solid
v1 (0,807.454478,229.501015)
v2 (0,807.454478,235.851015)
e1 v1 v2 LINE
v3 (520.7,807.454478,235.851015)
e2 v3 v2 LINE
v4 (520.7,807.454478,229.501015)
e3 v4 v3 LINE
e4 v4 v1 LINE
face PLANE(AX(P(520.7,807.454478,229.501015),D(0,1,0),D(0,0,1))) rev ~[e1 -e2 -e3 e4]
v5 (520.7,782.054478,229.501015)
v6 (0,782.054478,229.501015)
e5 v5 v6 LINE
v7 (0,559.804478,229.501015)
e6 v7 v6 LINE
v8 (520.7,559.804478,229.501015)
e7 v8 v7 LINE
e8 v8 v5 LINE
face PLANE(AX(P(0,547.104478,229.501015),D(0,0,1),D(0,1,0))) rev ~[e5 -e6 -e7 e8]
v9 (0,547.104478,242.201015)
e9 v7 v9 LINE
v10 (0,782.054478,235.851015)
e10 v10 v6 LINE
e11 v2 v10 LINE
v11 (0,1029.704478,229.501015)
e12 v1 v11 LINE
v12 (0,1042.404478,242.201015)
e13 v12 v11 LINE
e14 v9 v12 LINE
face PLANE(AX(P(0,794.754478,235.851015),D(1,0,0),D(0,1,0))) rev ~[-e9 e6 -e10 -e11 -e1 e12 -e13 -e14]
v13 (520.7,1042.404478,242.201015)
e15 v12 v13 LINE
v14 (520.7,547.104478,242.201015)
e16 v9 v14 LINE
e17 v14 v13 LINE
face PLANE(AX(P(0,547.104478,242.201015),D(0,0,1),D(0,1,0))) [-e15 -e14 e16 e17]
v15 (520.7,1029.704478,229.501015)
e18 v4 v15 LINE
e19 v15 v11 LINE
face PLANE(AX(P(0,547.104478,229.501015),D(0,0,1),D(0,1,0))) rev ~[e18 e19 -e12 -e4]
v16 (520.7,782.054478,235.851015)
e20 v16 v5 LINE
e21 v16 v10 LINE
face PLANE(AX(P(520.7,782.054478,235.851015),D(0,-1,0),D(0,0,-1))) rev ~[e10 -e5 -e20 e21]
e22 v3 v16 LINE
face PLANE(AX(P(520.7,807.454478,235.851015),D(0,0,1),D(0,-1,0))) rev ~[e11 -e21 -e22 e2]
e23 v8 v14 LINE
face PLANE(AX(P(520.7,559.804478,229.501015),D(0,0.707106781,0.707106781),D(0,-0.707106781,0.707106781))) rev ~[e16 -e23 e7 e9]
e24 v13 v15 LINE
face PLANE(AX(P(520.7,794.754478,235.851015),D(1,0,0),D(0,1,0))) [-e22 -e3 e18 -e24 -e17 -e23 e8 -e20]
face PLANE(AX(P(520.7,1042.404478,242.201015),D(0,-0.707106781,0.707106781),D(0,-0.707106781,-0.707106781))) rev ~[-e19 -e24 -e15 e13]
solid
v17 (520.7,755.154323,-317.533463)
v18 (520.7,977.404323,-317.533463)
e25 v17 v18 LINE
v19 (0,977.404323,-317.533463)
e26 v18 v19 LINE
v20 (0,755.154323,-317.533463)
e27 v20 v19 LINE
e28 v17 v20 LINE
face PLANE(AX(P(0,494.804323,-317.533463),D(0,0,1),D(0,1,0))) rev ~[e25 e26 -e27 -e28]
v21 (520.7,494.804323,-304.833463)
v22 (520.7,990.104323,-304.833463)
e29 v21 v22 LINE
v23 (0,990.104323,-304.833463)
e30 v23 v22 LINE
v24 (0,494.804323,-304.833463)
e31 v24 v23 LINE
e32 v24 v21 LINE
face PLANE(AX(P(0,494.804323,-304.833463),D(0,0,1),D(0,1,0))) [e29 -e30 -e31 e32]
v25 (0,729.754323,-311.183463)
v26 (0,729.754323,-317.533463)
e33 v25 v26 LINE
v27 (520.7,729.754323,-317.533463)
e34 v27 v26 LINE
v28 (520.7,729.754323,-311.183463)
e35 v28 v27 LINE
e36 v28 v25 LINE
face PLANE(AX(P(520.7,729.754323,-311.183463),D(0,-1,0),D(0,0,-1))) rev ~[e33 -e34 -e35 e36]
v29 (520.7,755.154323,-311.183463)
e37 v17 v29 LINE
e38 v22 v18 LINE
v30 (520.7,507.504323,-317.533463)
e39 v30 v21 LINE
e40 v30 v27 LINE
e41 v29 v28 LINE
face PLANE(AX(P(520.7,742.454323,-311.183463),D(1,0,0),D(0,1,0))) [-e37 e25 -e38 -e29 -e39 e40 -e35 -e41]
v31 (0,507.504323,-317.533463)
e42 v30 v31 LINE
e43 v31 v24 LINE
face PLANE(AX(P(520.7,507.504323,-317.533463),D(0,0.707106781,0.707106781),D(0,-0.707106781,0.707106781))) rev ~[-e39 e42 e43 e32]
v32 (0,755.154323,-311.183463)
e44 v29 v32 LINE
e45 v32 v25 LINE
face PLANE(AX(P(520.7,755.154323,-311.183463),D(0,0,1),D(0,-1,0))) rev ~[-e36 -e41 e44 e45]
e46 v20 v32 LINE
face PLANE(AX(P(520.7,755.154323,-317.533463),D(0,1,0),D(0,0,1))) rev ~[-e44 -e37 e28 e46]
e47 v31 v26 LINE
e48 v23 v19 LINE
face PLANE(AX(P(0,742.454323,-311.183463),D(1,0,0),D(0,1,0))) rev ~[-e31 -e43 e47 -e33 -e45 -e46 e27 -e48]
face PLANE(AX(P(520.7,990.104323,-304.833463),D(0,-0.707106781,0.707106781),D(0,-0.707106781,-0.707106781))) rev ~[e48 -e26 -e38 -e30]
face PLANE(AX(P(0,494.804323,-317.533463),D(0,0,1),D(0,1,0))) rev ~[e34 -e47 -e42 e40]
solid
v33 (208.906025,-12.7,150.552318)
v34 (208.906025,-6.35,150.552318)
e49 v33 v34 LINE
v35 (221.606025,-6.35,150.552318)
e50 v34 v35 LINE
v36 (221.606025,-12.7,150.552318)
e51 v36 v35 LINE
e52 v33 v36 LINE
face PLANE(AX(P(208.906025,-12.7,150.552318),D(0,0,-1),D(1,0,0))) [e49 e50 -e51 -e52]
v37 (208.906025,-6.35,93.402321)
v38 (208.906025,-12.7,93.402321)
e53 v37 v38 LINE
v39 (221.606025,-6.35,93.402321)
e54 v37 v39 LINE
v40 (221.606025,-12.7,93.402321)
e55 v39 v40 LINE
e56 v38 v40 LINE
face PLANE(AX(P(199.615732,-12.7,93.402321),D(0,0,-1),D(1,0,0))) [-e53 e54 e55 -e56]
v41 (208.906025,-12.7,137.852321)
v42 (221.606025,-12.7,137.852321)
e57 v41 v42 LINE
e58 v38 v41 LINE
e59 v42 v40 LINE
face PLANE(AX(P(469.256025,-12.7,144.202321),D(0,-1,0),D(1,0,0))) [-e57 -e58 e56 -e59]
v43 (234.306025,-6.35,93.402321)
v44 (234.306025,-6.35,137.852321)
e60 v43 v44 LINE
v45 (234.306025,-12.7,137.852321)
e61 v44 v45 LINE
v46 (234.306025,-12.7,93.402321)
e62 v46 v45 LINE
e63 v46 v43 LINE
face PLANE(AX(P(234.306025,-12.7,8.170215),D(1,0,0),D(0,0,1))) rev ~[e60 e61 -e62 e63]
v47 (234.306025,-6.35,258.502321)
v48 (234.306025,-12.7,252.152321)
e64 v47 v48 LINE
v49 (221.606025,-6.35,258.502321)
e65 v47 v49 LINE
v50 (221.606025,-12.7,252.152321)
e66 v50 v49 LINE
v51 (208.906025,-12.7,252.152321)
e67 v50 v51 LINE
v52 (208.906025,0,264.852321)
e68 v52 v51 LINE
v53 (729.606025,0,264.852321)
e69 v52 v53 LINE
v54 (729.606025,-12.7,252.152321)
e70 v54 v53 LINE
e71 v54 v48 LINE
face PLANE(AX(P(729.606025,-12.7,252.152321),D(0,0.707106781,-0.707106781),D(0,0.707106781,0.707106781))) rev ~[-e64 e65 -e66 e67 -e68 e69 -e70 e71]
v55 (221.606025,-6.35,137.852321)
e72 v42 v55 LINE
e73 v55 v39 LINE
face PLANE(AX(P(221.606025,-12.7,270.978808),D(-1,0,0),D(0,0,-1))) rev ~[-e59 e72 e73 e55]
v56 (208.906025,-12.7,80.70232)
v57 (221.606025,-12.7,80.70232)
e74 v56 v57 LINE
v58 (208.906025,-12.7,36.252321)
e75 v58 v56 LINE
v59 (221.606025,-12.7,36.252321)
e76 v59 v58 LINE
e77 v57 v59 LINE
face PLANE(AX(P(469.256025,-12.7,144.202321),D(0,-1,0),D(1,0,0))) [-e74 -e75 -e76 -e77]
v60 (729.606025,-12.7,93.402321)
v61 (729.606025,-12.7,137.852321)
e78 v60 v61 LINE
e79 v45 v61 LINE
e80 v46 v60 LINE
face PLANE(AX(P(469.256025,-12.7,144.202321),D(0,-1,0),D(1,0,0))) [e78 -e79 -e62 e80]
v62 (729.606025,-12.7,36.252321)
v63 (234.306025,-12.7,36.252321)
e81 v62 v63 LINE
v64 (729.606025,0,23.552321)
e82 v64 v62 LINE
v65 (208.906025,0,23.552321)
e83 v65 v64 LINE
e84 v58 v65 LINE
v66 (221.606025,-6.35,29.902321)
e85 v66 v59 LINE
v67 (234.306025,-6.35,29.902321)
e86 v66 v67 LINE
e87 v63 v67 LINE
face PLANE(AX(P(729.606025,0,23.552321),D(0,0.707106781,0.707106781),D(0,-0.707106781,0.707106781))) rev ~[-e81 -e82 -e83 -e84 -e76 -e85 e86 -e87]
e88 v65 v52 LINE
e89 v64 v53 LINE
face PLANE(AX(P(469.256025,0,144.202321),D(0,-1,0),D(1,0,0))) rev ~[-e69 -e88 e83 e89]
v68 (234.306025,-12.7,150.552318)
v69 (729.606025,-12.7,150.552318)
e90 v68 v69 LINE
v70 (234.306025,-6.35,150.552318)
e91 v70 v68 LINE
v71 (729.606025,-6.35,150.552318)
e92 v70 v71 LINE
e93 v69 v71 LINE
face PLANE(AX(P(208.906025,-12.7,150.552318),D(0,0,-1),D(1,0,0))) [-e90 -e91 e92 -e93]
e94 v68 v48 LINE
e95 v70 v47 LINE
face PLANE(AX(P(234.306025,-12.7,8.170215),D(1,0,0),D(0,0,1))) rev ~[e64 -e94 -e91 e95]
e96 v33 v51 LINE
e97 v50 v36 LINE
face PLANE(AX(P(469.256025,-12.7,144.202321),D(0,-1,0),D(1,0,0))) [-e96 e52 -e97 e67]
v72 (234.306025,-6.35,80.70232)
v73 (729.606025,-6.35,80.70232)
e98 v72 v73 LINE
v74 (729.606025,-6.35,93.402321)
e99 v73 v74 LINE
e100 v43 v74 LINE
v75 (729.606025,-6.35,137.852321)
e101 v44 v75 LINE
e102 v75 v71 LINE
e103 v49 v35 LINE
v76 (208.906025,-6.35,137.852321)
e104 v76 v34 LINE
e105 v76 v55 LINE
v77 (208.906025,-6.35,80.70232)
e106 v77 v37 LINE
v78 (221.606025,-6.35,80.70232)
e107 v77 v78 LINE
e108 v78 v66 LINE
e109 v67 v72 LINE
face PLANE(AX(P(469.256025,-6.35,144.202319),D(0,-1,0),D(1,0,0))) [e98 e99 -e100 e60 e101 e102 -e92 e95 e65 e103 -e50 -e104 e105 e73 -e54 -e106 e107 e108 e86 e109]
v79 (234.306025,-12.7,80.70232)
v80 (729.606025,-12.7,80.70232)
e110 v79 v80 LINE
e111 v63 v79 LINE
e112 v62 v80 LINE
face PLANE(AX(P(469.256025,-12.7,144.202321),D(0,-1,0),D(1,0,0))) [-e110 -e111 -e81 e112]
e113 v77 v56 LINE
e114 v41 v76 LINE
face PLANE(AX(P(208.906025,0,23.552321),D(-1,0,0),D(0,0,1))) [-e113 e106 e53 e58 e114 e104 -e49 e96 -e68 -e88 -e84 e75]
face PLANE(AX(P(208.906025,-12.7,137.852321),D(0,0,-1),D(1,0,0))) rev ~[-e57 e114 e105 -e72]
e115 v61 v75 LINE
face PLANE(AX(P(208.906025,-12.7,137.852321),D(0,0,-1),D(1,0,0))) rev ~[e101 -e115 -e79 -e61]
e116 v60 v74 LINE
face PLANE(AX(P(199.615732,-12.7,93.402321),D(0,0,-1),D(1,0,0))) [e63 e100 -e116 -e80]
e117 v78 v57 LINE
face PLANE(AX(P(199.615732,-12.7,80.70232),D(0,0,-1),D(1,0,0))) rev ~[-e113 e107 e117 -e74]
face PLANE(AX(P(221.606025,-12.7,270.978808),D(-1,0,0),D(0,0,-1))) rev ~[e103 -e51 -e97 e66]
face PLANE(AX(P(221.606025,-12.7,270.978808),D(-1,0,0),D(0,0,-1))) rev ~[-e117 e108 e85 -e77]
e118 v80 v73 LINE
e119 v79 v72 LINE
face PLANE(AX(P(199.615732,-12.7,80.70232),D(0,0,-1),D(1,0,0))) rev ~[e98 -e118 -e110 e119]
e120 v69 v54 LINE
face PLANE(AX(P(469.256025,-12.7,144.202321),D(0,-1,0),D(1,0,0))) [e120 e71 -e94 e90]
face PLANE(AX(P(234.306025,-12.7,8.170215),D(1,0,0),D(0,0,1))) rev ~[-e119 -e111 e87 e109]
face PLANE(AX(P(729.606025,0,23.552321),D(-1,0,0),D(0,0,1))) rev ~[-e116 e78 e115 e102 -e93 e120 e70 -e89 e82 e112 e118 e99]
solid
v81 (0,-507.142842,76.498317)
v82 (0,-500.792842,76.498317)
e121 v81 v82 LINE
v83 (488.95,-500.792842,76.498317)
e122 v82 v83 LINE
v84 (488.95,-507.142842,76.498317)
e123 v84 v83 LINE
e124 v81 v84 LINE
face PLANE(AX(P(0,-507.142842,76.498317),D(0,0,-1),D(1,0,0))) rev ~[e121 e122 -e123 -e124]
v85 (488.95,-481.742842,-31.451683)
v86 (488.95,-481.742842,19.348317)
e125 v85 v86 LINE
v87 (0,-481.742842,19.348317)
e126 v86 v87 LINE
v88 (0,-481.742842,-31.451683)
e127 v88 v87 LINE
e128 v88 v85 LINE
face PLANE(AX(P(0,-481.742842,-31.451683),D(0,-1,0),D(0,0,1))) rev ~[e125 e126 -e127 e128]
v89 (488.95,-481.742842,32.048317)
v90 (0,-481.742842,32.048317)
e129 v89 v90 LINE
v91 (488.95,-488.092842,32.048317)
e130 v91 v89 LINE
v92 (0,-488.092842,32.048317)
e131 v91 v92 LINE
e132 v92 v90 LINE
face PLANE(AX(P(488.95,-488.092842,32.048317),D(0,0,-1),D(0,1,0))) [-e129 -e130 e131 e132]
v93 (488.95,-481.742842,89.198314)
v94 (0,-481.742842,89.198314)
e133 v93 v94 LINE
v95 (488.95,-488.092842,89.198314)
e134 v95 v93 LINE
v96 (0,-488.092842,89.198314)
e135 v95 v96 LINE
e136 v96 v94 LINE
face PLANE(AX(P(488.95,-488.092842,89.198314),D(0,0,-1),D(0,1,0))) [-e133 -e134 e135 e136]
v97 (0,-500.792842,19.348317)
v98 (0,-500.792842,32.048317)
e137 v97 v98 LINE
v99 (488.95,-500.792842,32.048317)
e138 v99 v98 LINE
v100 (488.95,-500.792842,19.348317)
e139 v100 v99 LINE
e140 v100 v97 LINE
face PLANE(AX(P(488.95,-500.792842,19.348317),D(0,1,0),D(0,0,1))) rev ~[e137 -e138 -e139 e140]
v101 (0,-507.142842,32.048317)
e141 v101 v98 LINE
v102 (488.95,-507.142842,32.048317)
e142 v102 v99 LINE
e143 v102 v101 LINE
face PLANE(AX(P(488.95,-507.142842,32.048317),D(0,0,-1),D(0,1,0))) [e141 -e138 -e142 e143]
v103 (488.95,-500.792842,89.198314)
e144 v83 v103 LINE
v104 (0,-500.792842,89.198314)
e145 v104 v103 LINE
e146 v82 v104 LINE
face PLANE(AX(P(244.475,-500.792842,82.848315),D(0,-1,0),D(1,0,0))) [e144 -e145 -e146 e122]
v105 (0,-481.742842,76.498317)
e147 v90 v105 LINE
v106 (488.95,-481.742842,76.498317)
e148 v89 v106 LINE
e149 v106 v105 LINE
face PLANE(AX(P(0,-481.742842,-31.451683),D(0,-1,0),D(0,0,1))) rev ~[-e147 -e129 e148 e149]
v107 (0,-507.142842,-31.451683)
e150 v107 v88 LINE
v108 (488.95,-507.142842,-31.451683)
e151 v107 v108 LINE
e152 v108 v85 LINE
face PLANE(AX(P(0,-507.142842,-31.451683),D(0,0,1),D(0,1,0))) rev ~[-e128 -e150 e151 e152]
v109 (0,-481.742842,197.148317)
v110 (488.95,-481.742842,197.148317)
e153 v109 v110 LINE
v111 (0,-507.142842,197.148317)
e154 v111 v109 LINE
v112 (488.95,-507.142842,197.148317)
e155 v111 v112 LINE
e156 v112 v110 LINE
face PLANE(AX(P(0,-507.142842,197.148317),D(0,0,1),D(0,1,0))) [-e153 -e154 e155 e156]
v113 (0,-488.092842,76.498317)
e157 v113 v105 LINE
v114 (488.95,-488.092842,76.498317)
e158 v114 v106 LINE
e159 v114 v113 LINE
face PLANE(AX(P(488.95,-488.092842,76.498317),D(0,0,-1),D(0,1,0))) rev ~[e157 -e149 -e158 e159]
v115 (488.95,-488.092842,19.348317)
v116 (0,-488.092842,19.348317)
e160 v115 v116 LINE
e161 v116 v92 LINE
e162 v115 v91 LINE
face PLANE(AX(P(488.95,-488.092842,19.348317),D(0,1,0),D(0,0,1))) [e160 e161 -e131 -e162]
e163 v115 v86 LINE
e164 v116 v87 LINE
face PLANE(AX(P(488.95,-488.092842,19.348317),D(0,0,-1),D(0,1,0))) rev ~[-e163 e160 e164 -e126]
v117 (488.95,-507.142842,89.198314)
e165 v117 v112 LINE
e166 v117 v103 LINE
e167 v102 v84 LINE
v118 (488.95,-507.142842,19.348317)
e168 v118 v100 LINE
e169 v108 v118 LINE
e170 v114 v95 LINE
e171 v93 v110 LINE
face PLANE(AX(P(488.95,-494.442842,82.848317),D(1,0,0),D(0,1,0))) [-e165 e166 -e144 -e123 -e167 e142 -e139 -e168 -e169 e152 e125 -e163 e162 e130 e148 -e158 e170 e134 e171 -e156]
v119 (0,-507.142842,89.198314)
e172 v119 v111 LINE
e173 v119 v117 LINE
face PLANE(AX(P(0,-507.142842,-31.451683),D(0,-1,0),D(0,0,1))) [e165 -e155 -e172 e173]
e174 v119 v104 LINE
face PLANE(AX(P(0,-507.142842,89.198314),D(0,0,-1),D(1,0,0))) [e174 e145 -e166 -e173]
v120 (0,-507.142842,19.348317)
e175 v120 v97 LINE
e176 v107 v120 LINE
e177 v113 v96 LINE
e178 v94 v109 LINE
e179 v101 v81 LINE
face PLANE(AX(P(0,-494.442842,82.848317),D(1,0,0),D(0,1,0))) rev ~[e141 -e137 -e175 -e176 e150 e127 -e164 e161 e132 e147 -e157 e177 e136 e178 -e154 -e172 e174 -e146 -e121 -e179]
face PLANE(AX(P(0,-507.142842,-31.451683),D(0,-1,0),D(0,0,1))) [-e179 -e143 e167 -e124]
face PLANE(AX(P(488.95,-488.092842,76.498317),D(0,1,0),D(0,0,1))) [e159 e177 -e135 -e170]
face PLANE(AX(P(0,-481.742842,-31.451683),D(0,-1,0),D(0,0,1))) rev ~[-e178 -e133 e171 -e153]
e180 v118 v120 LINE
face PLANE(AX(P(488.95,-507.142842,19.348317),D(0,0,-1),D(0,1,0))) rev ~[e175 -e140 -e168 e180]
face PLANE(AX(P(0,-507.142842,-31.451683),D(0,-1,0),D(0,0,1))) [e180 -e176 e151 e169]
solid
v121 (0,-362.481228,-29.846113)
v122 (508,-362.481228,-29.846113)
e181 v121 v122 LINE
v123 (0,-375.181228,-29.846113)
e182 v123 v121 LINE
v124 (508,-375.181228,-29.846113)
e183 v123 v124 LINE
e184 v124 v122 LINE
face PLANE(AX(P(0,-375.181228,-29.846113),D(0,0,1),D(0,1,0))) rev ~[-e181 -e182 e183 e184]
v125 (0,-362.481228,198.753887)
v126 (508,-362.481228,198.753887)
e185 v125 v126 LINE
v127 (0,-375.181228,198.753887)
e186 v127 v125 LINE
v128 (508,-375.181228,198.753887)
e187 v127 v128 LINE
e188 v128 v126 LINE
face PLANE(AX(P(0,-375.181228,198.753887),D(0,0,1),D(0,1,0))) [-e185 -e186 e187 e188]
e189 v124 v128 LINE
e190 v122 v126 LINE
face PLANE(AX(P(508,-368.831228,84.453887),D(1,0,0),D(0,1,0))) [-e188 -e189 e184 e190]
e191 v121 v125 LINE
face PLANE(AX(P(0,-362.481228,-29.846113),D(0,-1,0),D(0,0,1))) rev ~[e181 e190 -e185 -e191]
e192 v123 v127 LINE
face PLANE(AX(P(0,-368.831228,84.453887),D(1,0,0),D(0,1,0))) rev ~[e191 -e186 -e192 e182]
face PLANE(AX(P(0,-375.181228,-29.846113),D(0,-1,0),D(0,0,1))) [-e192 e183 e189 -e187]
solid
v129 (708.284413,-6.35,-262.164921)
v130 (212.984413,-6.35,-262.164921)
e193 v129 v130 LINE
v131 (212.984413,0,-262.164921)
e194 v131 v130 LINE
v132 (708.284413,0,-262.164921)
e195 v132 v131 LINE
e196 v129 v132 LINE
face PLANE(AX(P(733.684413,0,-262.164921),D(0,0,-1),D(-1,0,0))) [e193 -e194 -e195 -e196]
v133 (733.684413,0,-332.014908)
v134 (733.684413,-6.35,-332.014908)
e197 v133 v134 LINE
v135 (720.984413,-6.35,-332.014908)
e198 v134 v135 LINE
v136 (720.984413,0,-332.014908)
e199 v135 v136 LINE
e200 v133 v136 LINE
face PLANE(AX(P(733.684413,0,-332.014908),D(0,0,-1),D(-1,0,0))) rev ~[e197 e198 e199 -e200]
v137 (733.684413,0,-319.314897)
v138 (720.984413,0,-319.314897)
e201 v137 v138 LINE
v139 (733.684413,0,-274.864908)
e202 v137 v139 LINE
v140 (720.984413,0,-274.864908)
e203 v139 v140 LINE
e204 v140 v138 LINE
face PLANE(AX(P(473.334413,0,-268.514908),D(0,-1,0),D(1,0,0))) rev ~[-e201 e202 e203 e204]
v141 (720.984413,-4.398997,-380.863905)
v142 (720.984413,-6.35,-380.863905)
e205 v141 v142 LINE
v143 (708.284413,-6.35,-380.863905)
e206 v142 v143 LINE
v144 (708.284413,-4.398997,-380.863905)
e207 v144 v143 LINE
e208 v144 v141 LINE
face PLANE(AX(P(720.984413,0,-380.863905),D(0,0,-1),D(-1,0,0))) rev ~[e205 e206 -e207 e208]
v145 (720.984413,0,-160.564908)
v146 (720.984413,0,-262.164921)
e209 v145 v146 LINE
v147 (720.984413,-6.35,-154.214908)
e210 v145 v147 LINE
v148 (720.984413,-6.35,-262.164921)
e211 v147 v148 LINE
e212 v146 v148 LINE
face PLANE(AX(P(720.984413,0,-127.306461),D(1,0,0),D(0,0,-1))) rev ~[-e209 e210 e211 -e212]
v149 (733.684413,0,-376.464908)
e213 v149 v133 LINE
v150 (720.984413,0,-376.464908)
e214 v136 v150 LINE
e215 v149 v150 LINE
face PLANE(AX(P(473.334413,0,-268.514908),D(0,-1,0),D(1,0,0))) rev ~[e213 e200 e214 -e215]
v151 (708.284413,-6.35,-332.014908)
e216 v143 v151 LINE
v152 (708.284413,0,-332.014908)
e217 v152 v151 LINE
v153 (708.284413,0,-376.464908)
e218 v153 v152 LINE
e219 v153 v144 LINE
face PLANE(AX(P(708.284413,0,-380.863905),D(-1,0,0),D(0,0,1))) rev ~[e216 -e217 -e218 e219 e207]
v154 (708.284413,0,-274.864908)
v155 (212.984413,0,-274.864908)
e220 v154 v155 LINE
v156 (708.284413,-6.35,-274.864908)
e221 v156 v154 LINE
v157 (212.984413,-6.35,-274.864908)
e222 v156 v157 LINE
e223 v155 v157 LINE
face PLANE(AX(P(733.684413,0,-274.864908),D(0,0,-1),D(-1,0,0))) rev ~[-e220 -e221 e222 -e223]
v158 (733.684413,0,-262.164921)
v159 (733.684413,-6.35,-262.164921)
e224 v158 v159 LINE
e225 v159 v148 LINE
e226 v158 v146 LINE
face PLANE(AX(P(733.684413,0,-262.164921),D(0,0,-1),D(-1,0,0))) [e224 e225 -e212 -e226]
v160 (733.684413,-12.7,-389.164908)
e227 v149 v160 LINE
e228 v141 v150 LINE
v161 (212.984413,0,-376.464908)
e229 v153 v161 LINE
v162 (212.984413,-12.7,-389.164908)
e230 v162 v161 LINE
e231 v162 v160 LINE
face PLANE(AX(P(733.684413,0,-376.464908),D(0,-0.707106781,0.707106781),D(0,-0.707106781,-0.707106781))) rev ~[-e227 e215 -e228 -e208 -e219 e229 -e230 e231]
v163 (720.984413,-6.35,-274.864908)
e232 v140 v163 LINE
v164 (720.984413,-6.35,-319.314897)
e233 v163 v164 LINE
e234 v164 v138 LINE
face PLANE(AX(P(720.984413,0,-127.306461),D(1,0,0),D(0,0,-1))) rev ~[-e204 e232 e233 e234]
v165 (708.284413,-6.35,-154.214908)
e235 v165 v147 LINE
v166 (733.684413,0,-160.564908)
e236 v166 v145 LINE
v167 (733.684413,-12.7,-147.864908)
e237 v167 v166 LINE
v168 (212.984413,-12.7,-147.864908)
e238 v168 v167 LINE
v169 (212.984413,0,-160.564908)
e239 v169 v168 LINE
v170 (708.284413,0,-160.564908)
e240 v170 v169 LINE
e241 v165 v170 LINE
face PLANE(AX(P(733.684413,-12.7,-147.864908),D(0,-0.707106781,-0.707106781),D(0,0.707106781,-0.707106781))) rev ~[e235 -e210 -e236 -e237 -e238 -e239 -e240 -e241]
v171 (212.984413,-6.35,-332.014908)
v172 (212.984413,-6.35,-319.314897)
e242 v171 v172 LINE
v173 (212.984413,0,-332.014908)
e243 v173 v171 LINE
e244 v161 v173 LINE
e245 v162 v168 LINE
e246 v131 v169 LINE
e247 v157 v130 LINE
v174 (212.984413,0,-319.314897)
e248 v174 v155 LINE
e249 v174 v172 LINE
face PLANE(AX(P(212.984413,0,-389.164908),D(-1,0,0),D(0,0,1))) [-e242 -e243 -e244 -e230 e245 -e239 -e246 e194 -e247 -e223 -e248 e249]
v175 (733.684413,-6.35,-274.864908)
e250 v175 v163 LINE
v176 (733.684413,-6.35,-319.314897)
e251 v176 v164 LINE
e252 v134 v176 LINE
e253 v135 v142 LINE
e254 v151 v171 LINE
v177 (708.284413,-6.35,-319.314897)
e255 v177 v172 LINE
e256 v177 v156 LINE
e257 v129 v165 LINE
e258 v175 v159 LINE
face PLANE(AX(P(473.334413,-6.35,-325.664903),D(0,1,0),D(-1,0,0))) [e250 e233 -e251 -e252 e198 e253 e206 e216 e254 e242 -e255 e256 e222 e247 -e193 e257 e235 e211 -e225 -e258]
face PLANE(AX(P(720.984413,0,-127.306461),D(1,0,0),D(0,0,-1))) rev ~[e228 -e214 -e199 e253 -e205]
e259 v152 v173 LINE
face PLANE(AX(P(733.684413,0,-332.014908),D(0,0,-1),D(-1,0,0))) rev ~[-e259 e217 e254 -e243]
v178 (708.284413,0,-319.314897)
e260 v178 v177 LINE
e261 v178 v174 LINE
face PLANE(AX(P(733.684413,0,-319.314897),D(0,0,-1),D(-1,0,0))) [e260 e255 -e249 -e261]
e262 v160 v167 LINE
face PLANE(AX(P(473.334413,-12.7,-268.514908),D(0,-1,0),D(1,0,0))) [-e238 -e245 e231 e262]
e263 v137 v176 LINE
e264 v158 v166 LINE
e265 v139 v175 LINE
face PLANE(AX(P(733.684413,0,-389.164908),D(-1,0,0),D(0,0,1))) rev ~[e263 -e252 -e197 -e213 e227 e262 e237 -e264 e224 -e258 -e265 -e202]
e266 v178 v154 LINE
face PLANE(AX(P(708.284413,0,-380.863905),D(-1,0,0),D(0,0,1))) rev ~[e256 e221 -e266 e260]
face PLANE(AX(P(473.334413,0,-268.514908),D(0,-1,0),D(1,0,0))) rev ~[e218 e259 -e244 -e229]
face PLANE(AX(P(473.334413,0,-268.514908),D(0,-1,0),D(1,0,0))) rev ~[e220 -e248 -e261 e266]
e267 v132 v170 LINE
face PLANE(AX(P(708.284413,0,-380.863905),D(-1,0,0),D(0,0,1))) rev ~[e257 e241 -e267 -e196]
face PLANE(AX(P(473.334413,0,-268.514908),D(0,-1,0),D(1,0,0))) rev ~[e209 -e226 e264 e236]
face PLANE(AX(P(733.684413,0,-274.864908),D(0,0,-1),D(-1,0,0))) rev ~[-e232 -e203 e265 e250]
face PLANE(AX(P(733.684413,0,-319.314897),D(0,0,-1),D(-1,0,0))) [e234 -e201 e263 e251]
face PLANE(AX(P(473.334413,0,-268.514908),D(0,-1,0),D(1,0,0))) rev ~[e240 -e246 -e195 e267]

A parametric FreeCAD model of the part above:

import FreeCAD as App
import Part
import Sketcher

V = App.Vector
Q = App.Units.Quantity

doc = App.newDocument("Part")
body = doc.addObject("PartDesign::Body", "Body")

# Sketch on XZ plane
sketch1 = doc.addObject("Sketcher::SketchObject", "Sketch")
body.addObject(sketch1)
sketch1.AttachmentSupport = (doc.XZ_Plane, [""])
sketch1.MapMode = "FlatFace"
sketch1.addGeometry([
    Part.LineSegment(V(209, 265, 0), V(209, 24, 0)),
    Part.LineSegment(V(209, 24, 0), V(730, 24, 0)),
    Part.LineSegment(V(730, 24, 0), V(730, 265, 0)),
    Part.LineSegment(V(730, 265, 0), V(209, 265, 0)),
], False)
sketch1.addConstraint([
    Sketcher.Constraint("Coincident", 0, 2, 1, 1),
    Sketcher.Constraint("Coincident", 1, 2, 2, 1),
    Sketcher.Constraint("Coincident", 2, 2, 3, 1),
    Sketcher.Constraint("Coincident", 3, 2, 0, 1),
    Sketcher.Constraint("Vertical", 0),
    Sketcher.Constraint("Horizontal", 1),
    Sketcher.Constraint("Vertical", 2),
    Sketcher.Constraint("Horizontal", 3),
    Sketcher.Constraint("DistanceX", 1, 1, 1, 2, Q("20.5 in")),
    Sketcher.Constraint("DistanceY", 0, 2, 0, 1, Q("9.5 in")),
    Sketcher.Constraint("DistanceY", -1, 1, 0, 2, Q("23.552321 mm")),
    Sketcher.Constraint("DistanceX", -1, 1, 0, 2, Q("208.906025 mm")),
])
pad1 = doc.addObject("PartDesign::Pad", "Pad")
body.addObject(pad1)
pad1.Profile = sketch1
pad1.Length = Q("0.5 in")

# Sketch on YZ plane
sketch2 = doc.addObject("Sketcher::SketchObject", "Sketch001")
body.addObject(sketch2)
sketch2.AttachmentSupport = (doc.YZ_Plane, [""])
sketch2.MapMode = "FlatFace"
sketch2.AttachmentOffset = App.Placement(V(0, 0, 729.606025), App.Rotation())
sketch2.addGeometry([
    Part.LineSegment(V(0, 24, 0), V(-13, 36, 0)),  # 0
    Part.LineSegment(V(-13, 36, 0), V(-13, 24, 0)),  # 1
    Part.LineSegment(V(-13, 24, 0), V(0, 24, 0)),  # 2
    Part.LineSegment(V(-13, 265, 0), V(-13, 252, 0)),  # 3
    Part.LineSegment(V(-13, 252, 0), V(0, 265, 0)),  # 4
    Part.LineSegment(V(0, 265, 0), V(-13, 265, 0)),  # 5
], False)
sketch2.addConstraint([
    Sketcher.Constraint("Coincident", 0, 2, 1, 1),
    Sketcher.Constraint("Coincident", 1, 2, 2, 1),
    Sketcher.Constraint("Coincident", 2, 2, 0, 1),
    Sketcher.Constraint("Coincident", 3, 2, 4, 1),
    Sketcher.Constraint("Coincident", 4, 2, 5, 1),
    Sketcher.Constraint("Coincident", 5, 2, 3, 1),
    Sketcher.Constraint("Vertical", 1),
    Sketcher.Constraint("Horizontal", 2),
    Sketcher.Constraint("Vertical", 3),
    Sketcher.Constraint("Horizontal", 5),
    Sketcher.Constraint("PointOnObject", 2, 2, -2),
    Sketcher.Constraint("PointOnObject", 4, 2, -2),
    Sketcher.Constraint("Perpendicular", 0, 4),
    Sketcher.Constraint("Vertical", 1, 2, 3, 2),
    Sketcher.Constraint("Equal", 5, 1),
    Sketcher.Constraint("DistanceX", 2, 1, 2, 2, Q("0.5 in")),
    Sketcher.Constraint("DistanceY", 1, 2, 3, 2, Q("9 in")),
    Sketcher.Constraint("DistanceY", -1, 1, 0, 2, Q("36.252321 mm")),
])
pocket1 = doc.addObject("PartDesign::Pocket", "Pocket")
body.addObject(pocket1)
pocket1.Profile = sketch2
pocket1.Type = "ThroughAll"

# Sketch on XZ plane
sketch3 = doc.addObject("Sketcher::SketchObject", "Sketch002")
body.addObject(sketch3)
sketch3.AttachmentSupport = (doc.XZ_Plane, [""])
sketch3.MapMode = "FlatFace"
sketch3.AttachmentOffset = App.Placement(V(0, 0, 0.5 * 25.4), App.Rotation())
sketch3.addGeometry([
    Part.LineSegment(V(209, 151, 0), V(209, 138, 0)),
    Part.LineSegment(V(209, 138, 0), V(730, 138, 0)),
    Part.LineSegment(V(730, 138, 0), V(730, 151, 0)),
    Part.LineSegment(V(730, 151, 0), V(209, 151, 0)),
], False)
sketch3.addConstraint([
    Sketcher.Constraint("Coincident", 0, 2, 1, 1),
    Sketcher.Constraint("Coincident", 1, 2, 2, 1),
    Sketcher.Constraint("Coincident", 2, 2, 3, 1),
    Sketcher.Constraint("Coincident", 3, 2, 0, 1),
    Sketcher.Constraint("Vertical", 0),
    Sketcher.Constraint("Horizontal", 1),
    Sketcher.Constraint("Vertical", 2),
    Sketcher.Constraint("Horizontal", 3),
    Sketcher.Constraint("DistanceX", 1, 1, 1, 2, Q("20.5 in")),
    Sketcher.Constraint("DistanceY", 0, 2, 0, 1, Q("0.4999999 in")),
    Sketcher.Constraint("DistanceY", -1, 1, 0, 2, Q("137.852321 mm")),
    Sketcher.Constraint("DistanceX", -1, 1, 0, 2, Q("208.906025 mm")),
])
pocket2 = doc.addObject("PartDesign::Pocket", "Pocket001")
body.addObject(pocket2)
pocket2.Profile = sketch3
pocket2.Length = Q("0.25 in")

# Sketch on XZ plane
sketch4 = doc.addObject("Sketcher::SketchObject", "Sketch003")
body.addObject(sketch4)
sketch4.AttachmentSupport = (doc.XZ_Plane, [""])
sketch4.MapMode = "FlatFace"
sketch4.AttachmentOffset = App.Placement(V(0, 0, 0.5 * 25.4), App.Rotation())
sketch4.addGeometry([
    Part.LineSegment(V(222, 271, 0), V(222, 8, 0)),
    Part.LineSegment(V(222, 8, 0), V(234, 8, 0)),
    Part.LineSegment(V(234, 8, 0), V(234, 265, 0)),
    Part.LineSegment(V(234, 265, 0), V(222, 271, 0)),
], False)
sketch4.addConstraint([
    Sketcher.Constraint("Coincident", 0, 2, 1, 1),
    Sketcher.Constraint("Coincident", 1, 2, 2, 1),
    Sketcher.Constraint("Coincident", 2, 2, 3, 1),
    Sketcher.Constraint("Coincident", 3, 2, 0, 1),
    Sketcher.Constraint("Vertical", 0),
    Sketcher.Constraint("Horizontal", 1),
    Sketcher.Constraint("Vertical", 2),
    Sketcher.Constraint("DistanceX", 1, 1, 1, 2, Q("0.5 in")),
    Sketcher.Constraint("Distance", 3, Q("14.08391 mm")),
    Sketcher.Constraint("DistanceY", 0, 2, 0, 1, Q("262.808593 mm")),
    Sketcher.Constraint("DistanceY", -1, 1, 2, 2, Q("264.890581 mm")),
    Sketcher.Constraint("DistanceX", -1, 1, 0, 2, Q("221.606025 mm")),
])
pocket3 = doc.addObject("PartDesign::Pocket", "Pocket002")
body.addObject(pocket3)
pocket3.Profile = sketch4
pocket3.Length = Q("0.25 in")

# Sketch on XZ plane
sketch5 = doc.addObject("Sketcher::SketchObject", "Sketch004")
body.addObject(sketch5)
sketch5.AttachmentSupport = (doc.XZ_Plane, [""])
sketch5.MapMode = "FlatFace"
sketch5.AttachmentOffset = App.Placement(V(0, 0, 0.5 * 25.4), App.Rotation())
sketch5.addGeometry([
    Part.LineSegment(V(200, 93, 0), V(200, 81, 0)),
    Part.LineSegment(V(200, 81, 0), V(730, 81, 0)),
    Part.LineSegment(V(730, 81, 0), V(730, 93, 0)),
    Part.LineSegment(V(730, 93, 0), V(200, 93, 0)),
], False)
sketch5.addConstraint([
    Sketcher.Constraint("Coincident", 0, 2, 1, 1),
    Sketcher.Constraint("Coincident", 1, 2, 2, 1),
    Sketcher.Constraint("Coincident", 2, 2, 3, 1),
    Sketcher.Constraint("Coincident", 3, 2, 0, 1),
    Sketcher.Constraint("Vertical", 0),
    Sketcher.Constraint("Horizontal", 1),
    Sketcher.Constraint("Vertical", 2),
    Sketcher.Constraint("Horizontal", 3),
    Sketcher.Constraint("DistanceY", 0, 2, 0, 1, Q("0.5 in")),
    Sketcher.Constraint("DistanceX", 1, 1, 1, 2, Q("529.990293 mm")),
    Sketcher.Constraint("DistanceX", -1, 1, 0, 2, Q("199.615732 mm")),
    Sketcher.Constraint("DistanceY", -1, 1, 0, 2, Q("80.70232 mm")),
])
pocket4 = doc.addObject("PartDesign::Pocket", "Pocket003")
body.addObject(pocket4)
pocket4.Profile = sketch5
pocket4.Length = Q("0.25 in")
body2 = doc.addObject("PartDesign::Body", "Body001")

# Sketch on XZ plane
sketch6 = doc.addObject("Sketcher::SketchObject", "Sketch005")
body2.addObject(sketch6)
sketch6.AttachmentSupport = (doc.getObject("XZ_Plane001"), [""])
sketch6.MapMode = "FlatFace"
sketch6.addGeometry([
    Part.LineSegment(V(213, -148, 0), V(213, -389, 0)),
    Part.LineSegment(V(213, -389, 0), V(734, -389, 0)),
    Part.LineSegment(V(734, -389, 0), V(734, -148, 0)),
    Part.LineSegment(V(734, -148, 0), V(213, -148, 0)),
], False)
sketch6.addConstraint([
    Sketcher.Constraint("Coincident", 0, 2, 1, 1),
    Sketcher.Constraint("Coincident", 1, 2, 2, 1),
    Sketcher.Constraint("Coincident", 2, 2, 3, 1),
    Sketcher.Constraint("Coincident", 3, 2, 0, 1),
    Sketcher.Constraint("Vertical", 0),
    Sketcher.Constraint("Horizontal", 1),
    Sketcher.Constraint("Vertical", 2),
    Sketcher.Constraint("Horizontal", 3),
    Sketcher.Constraint("DistanceX", 1, 1, 1, 2, Q("20.5 in")),
    Sketcher.Constraint("DistanceY", 0, 2, 0, 1, Q("9.5 in")),
    Sketcher.Constraint("DistanceX", -1, 1, 0, 2, Q("212.984413 mm")),
    Sketcher.Constraint("DistanceY", 0, 2, -1, 1, Q("389.164908 mm")),
])
pad2 = doc.addObject("PartDesign::Pad", "Pad001")
body2.addObject(pad2)
pad2.Profile = sketch6
pad2.Length = Q("0.5 in")

# Sketch on YZ plane
sketch7 = doc.addObject("Sketcher::SketchObject", "Sketch006")
body2.addObject(sketch7)
sketch7.AttachmentSupport = (doc.getObject("YZ_Plane001"), [""])
sketch7.MapMode = "FlatFace"
sketch7.AttachmentOffset = App.Placement(V(0, 0, 733.684413), App.Rotation())
sketch7.addGeometry([
    Part.LineSegment(V(-13, -148, 0), V(0, -161, 0)),  # 0
    Part.LineSegment(V(0, -161, 0), V(0, -148, 0)),  # 1
    Part.LineSegment(V(0, -148, 0), V(-13, -148, 0)),  # 2
    Part.LineSegment(V(0, -389, 0), V(0, -376, 0)),  # 3
    Part.LineSegment(V(0, -376, 0), V(-13, -389, 0)),  # 4
    Part.LineSegment(V(-13, -389, 0), V(0, -389, 0)),  # 5
], False)
sketch7.addConstraint([
    Sketcher.Constraint("Coincident", 0, 2, 1, 1),
    Sketcher.Constraint("Coincident", 1, 2, 2, 1),
    Sketcher.Constraint("Coincident", 2, 2, 0, 1),
    Sketcher.Constraint("Coincident", 3, 2, 4, 1),
    Sketcher.Constraint("Coincident", 4, 2, 5, 1),
    Sketcher.Constraint("Coincident", 5, 2, 3, 1),
    Sketcher.Constraint("Vertical", 1),
    Sketcher.Constraint("Horizontal", 2),
    Sketcher.Constraint("Vertical", 3),
    Sketcher.Constraint("Horizontal", 5),
    Sketcher.Constraint("PointOnObject", 0, 2, -2),
    Sketcher.Constraint("PointOnObject", 3, 2, -2),
    Sketcher.Constraint("Perpendicular", 0, 4),
    Sketcher.Constraint("Vertical", 2, 2, 4, 2),
    Sketcher.Constraint("Equal", 5, 1),
    Sketcher.Constraint("DistanceX", 2, 2, 2, 1, Q("0.5 in")),
    Sketcher.Constraint("DistanceY", 3, 2, 1, 2, Q("9 in")),
    Sketcher.Constraint("DistanceY", 0, 2, -1, 1, Q("160.564908 mm")),
])
pocket5 = doc.addObject("PartDesign::Pocket", "Pocket004")
body2.addObject(pocket5)
pocket5.Profile = sketch7
pocket5.Type = "ThroughAll"

# Sketch on XZ plane
sketch8 = doc.addObject("Sketcher::SketchObject", "Sketch007")
body2.addObject(sketch8)
sketch8.AttachmentSupport = (doc.getObject("XZ_Plane001"), [""])
sketch8.MapMode = "FlatFace"
sketch8.addGeometry([
    Part.LineSegment(V(734, -262, 0), V(734, -275, 0)),
    Part.LineSegment(V(734, -275, 0), V(213, -275, 0)),
    Part.LineSegment(V(213, -275, 0), V(213, -262, 0)),
    Part.LineSegment(V(213, -262, 0), V(734, -262, 0)),
], False)
sketch8.addConstraint([
    Sketcher.Constraint("Coincident", 0, 2, 1, 1),
    Sketcher.Constraint("Coincident", 1, 2, 2, 1),
    Sketcher.Constraint("Coincident", 2, 2, 3, 1),
    Sketcher.Constraint("Coincident", 3, 2, 0, 1),
    Sketcher.Constraint("Vertical", 0),
    Sketcher.Constraint("Horizontal", 1),
    Sketcher.Constraint("Vertical", 2),
    Sketcher.Constraint("Horizontal", 3),
    Sketcher.Constraint("DistanceX", 1, 2, 1, 1, Q("20.5 in")),
    Sketcher.Constraint("DistanceY", 0, 2, 0, 1, Q("12.699987 mm")),
    Sketcher.Constraint("DistanceY", 2, 2, -1, 1, Q("262.164921 mm")),
    Sketcher.Constraint("DistanceX", -1, 1, 0, 2, Q("733.684413 mm")),
])
pocket6 = doc.addObject("PartDesign::Pocket", "Pocket005")
body2.addObject(pocket6)
pocket6.Profile = sketch8
pocket6.Length = Q("0.25 in")
pocket6.Reversed = True

# Sketch on XZ plane
sketch9 = doc.addObject("Sketcher::SketchObject", "Sketch008")
body2.addObject(sketch9)
sketch9.AttachmentSupport = (doc.getObject("XZ_Plane001"), [""])
sketch9.MapMode = "FlatFace"
sketch9.addGeometry([
    Part.LineSegment(V(721, -381, 0), V(708, -381, 0)),
    Part.LineSegment(V(708, -381, 0), V(708, -127, 0)),
    Part.LineSegment(V(708, -127, 0), V(721, -127, 0)),
    Part.LineSegment(V(721, -127, 0), V(721, -381, 0)),
], False)
sketch9.addConstraint([
    Sketcher.Constraint("Coincident", 0, 2, 1, 1),
    Sketcher.Constraint("Coincident", 1, 2, 2, 1),
    Sketcher.Constraint("Coincident", 2, 2, 3, 1),
    Sketcher.Constraint("Coincident", 3, 2, 0, 1),
    Sketcher.Constraint("Horizontal", 0),
    Sketcher.Constraint("Vertical", 1),
    Sketcher.Constraint("Horizontal", 2),
    Sketcher.Constraint("Vertical", 3),
    Sketcher.Constraint("DistanceX", 0, 2, 0, 1, Q("0.5 in")),
    Sketcher.Constraint("DistanceY", 1, 1, 1, 2, Q("253.557444 mm")),
    Sketcher.Constraint("DistanceY", 1, 2, -1, 1, Q("127.306461 mm")),
    Sketcher.Constraint("DistanceX", -1, 1, 0, 2, Q("708.284413 mm")),
])
pocket7 = doc.addObject("PartDesign::Pocket", "Pocket006")
body2.addObject(pocket7)
pocket7.Profile = sketch9
pocket7.Length = Q("0.25 in")
pocket7.Reversed = True

# Sketch on XZ plane
sketch10 = doc.addObject("Sketcher::SketchObject", "Sketch009")
body2.addObject(sketch10)
sketch10.AttachmentSupport = (doc.getObject("XZ_Plane001"), [""])
sketch10.MapMode = "FlatFace"
sketch10.addGeometry([
    Part.LineSegment(V(734, -319, 0), V(734, -332, 0)),
    Part.LineSegment(V(734, -332, 0), V(213, -332, 0)),
    Part.LineSegment(V(213, -332, 0), V(213, -319, 0)),
    Part.LineSegment(V(213, -319, 0), V(734, -319, 0)),
], False)
sketch10.addConstraint([
    Sketcher.Constraint("Coincident", 0, 2, 1, 1),
    Sketcher.Constraint("Coincident", 1, 2, 2, 1),
    Sketcher.Constraint("Coincident", 2, 2, 3, 1),
    Sketcher.Constraint("Coincident", 3, 2, 0, 1),
    Sketcher.Constraint("Vertical", 0),
    Sketcher.Constraint("Horizontal", 1),
    Sketcher.Constraint("Vertical", 2),
    Sketcher.Constraint("Horizontal", 3),
    Sketcher.Constraint("DistanceX", 1, 2, 1, 1, Q("20.5 in")),
    Sketcher.Constraint("DistanceY", 0, 2, 0, 1, Q("12.700011 mm")),
    Sketcher.Constraint("DistanceX", -1, 1, 0, 2, Q("733.684413 mm")),
    Sketcher.Constraint("DistanceY", 0, 2, -1, 1, Q("332.014908 mm")),
])
pocket8 = doc.addObject("PartDesign::Pocket", "Pocket007")
body2.addObject(pocket8)
pocket8.Profile = sketch10
pocket8.Length = Q("0.25 in")
pocket8.Reversed = True
body3 = doc.addObject("PartDesign::Body", "Body002")

# Sketch on YZ plane
sketch11 = doc.addObject("Sketcher::SketchObject", "Sketch010")
body3.addObject(sketch11)
sketch11.AttachmentSupport = (doc.getObject("YZ_Plane002"), [""])
sketch11.MapMode = "FlatFace"
sketch11.addGeometry([
    Part.LineSegment(V(-507, 197, 0), V(-507, -31, 0)),
    Part.LineSegment(V(-507, -31, 0), V(-482, -31, 0)),
    Part.LineSegment(V(-482, -31, 0), V(-482, 197, 0)),
    Part.LineSegment(V(-482, 197, 0), V(-507, 197, 0)),
], False)
sketch11.addConstraint([
    Sketcher.Constraint("Coincident", 0, 2, 1, 1),
    Sketcher.Constraint("Coincident", 1, 2, 2, 1),
    Sketcher.Constraint("Coincident", 2, 2, 3, 1),
    Sketcher.Constraint("Coincident", 3, 2, 0, 1),
    Sketcher.Constraint("Vertical", 0),
    Sketcher.Constraint("Horizontal", 1),
    Sketcher.Constraint("Vertical", 2),
    Sketcher.Constraint("Horizontal", 3),
    Sketcher.Constraint("DistanceX", 1, 1, 1, 2, Q("1 in")),
    Sketcher.Constraint("DistanceY", 0, 2, 0, 1, Q("9 in")),
    Sketcher.Constraint("DistanceX", 0, 2, -1, 1, Q("507.142842 mm")),
    Sketcher.Constraint("DistanceY", 0, 2, -1, 1, Q("31.451683 mm")),
])
pad3 = doc.addObject("PartDesign::Pad", "Pad002")
body3.addObject(pad3)
pad3.Profile = sketch11
pad3.Length = Q("19.25 in")

# Sketch on XZ plane
sketch12 = doc.addObject("Sketcher::SketchObject", "Sketch011")
body3.addObject(sketch12)
sketch12.AttachmentSupport = (doc.getObject("XZ_Plane002"), [""])
sketch12.MapMode = "FlatFace"
sketch12.AttachmentOffset = App.Placement(V(0, 0, 507.142842), App.Rotation())
sketch12.addGeometry([
    Part.LineSegment(V(0, 89, 0), V(0, 76, 0)),
    Part.LineSegment(V(0, 76, 0), V(489, 76, 0)),
    Part.LineSegment(V(489, 76, 0), V(489, 89, 0)),
    Part.LineSegment(V(489, 89, 0), V(0, 89, 0)),
], False)
sketch12.addConstraint([
    Sketcher.Constraint("Coincident", 0, 2, 1, 1),
    Sketcher.Constraint("Coincident", 1, 2, 2, 1),
    Sketcher.Constraint("Coincident", 2, 2, 3, 1),
    Sketcher.Constraint("Coincident", 3, 2, 0, 1),
    Sketcher.Constraint("Vertical", 0),
    Sketcher.Constraint("Horizontal", 1),
    Sketcher.Constraint("Vertical", 2),
    Sketcher.Constraint("Horizontal", 3),
    Sketcher.Constraint("PointOnObject", 0, 2, -2),
    Sketcher.Constraint("DistanceY", 0, 2, 0, 1, Q("0.4999999 in")),
    Sketcher.Constraint("DistanceX", 1, 1, 1, 2, Q("19.25 in")),
    Sketcher.Constraint("DistanceY", -1, 1, 0, 2, Q("76.498317 mm")),
])
pocket9 = doc.addObject("PartDesign::Pocket", "Pocket008")
body3.addObject(pocket9)
pocket9.Profile = sketch12
pocket9.Length = Q("0.25 in")

# Sketch on YZ plane
sketch13 = doc.addObject("Sketcher::SketchObject", "Sketch012")
body3.addObject(sketch13)
sketch13.AttachmentSupport = (doc.getObject("YZ_Plane002"), [""])
sketch13.MapMode = "FlatFace"
sketch13.AttachmentOffset = App.Placement(V(0, 0, 19.25 * 25.4), App.Rotation())
sketch13.addGeometry([
    Part.LineSegment(V(-488, 89, 0), V(-488, 76, 0)),
    Part.LineSegment(V(-488, 76, 0), V(-482, 76, 0)),
    Part.LineSegment(V(-482, 76, 0), V(-482, 89, 0)),
    Part.LineSegment(V(-482, 89, 0), V(-488, 89, 0)),
], False)
sketch13.addConstraint([
    Sketcher.Constraint("Coincident", 0, 2, 1, 1),
    Sketcher.Constraint("Coincident", 1, 2, 2, 1),
    Sketcher.Constraint("Coincident", 2, 2, 3, 1),
    Sketcher.Constraint("Coincident", 3, 2, 0, 1),
    Sketcher.Constraint("Vertical", 0),
    Sketcher.Constraint("Horizontal", 1),
    Sketcher.Constraint("Vertical", 2),
    Sketcher.Constraint("Horizontal", 3),
    Sketcher.Constraint("DistanceY", 0, 2, 0, 1, Q("0.4999999 in")),
    Sketcher.Constraint("DistanceX", 1, 1, 1, 2, Q("0.25 in")),
    Sketcher.Constraint("DistanceX", 0, 2, -1, 1, Q("488.092842 mm")),
    Sketcher.Constraint("DistanceY", -1, 1, 0, 2, Q("76.498317 mm")),
])
pocket10 = doc.addObject("PartDesign::Pocket", "Pocket009")
body3.addObject(pocket10)
pocket10.Profile = sketch13
pocket10.Type = "ThroughAll"

# Sketch on YZ plane
sketch14 = doc.addObject("Sketcher::SketchObject", "Sketch013")
body3.addObject(sketch14)
sketch14.AttachmentSupport = (doc.getObject("YZ_Plane002"), [""])
sketch14.MapMode = "FlatFace"
sketch14.AttachmentOffset = App.Placement(V(0, 0, 19.25 * 25.4), App.Rotation())
sketch14.addGeometry([
    Part.LineSegment(V(-507, 32, 0), V(-507, 19, 0)),  # 0
    Part.LineSegment(V(-507, 19, 0), V(-501, 19, 0)),  # 1
    Part.LineSegment(V(-501, 19, 0), V(-501, 32, 0)),  # 2
    Part.LineSegment(V(-501, 32, 0), V(-507, 32, 0)),  # 3
    Part.LineSegment(V(-488, 32, 0), V(-488, 19, 0)),  # 4
    Part.LineSegment(V(-488, 19, 0), V(-482, 19, 0)),  # 5
    Part.LineSegment(V(-482, 19, 0), V(-482, 32, 0)),  # 6
    Part.LineSegment(V(-482, 32, 0), V(-488, 32, 0)),  # 7
], False)
sketch14.addConstraint([
    Sketcher.Constraint("Coincident", 0, 2, 1, 1),
    Sketcher.Constraint("Coincident", 1, 2, 2, 1),
    Sketcher.Constraint("Coincident", 2, 2, 3, 1),
    Sketcher.Constraint("Coincident", 3, 2, 0, 1),
    Sketcher.Constraint("Coincident", 4, 2, 5, 1),
    Sketcher.Constraint("Coincident", 5, 2, 6, 1),
    Sketcher.Constraint("Coincident", 6, 2, 7, 1),
    Sketcher.Constraint("Coincident", 7, 2, 4, 1),
    Sketcher.Constraint("Vertical", 0),
    Sketcher.Constraint("Horizontal", 1),
    Sketcher.Constraint("Vertical", 2),
    Sketcher.Constraint("Horizontal", 3),
    Sketcher.Constraint("Vertical", 4),
    Sketcher.Constraint("Horizontal", 5),
    Sketcher.Constraint("Vertical", 6),
    Sketcher.Constraint("Horizontal", 7),
    Sketcher.Constraint("Horizontal", 1, 2, 4, 2),
    Sketcher.Constraint("Horizontal", 3, 2, 6, 2),
    Sketcher.Constraint("Equal", 3, 5),
    Sketcher.Constraint("DistanceY", 0, 2, 0, 1, Q("0.5 in")),
    Sketcher.Constraint("DistanceX", 0, 2, 5, 2, Q("1 in")),
    Sketcher.Constraint("DistanceX", 1, 1, 1, 2, Q("0.25 in")),
    Sketcher.Constraint("DistanceX", 0, 2, -1, 1, Q("507.142842 mm")),
    Sketcher.Constraint("DistanceY", -1, 1, 0, 2, Q("19.348317 mm")),
])
pocket11 = doc.addObject("PartDesign::Pocket", "Pocket010")
body3.addObject(pocket11)
pocket11.Profile = sketch14
pocket11.Type = "ThroughAll"
body4 = doc.addObject("PartDesign::Body", "Body003")

# Sketch on YZ plane
sketch15 = doc.addObject("Sketcher::SketchObject", "Sketch014")
body4.addObject(sketch15)
sketch15.AttachmentSupport = (doc.getObject("YZ_Plane003"), [""])
sketch15.MapMode = "FlatFace"
sketch15.addGeometry([
    Part.LineSegment(V(547, 242, 0), V(547, 230, 0)),
    Part.LineSegment(V(547, 230, 0), V(1042, 230, 0)),
    Part.LineSegment(V(1042, 230, 0), V(1042, 242, 0)),
    Part.LineSegment(V(1042, 242, 0), V(547, 242, 0)),
], False)
sketch15.addConstraint([
    Sketcher.Constraint("Coincident", 0, 2, 1, 1),
    Sketcher.Constraint("Coincident", 1, 2, 2, 1),
    Sketcher.Constraint("Coincident", 2, 2, 3, 1),
    Sketcher.Constraint("Coincident", 3, 2, 0, 1),
    Sketcher.Constraint("Vertical", 0),
    Sketcher.Constraint("Horizontal", 1),
    Sketcher.Constraint("Vertical", 2),
    Sketcher.Constraint("Horizontal", 3),
    Sketcher.Constraint("DistanceX", 1, 1, 1, 2, Q("19.5 in")),
    Sketcher.Constraint("DistanceY", 0, 2, 0, 1, Q("0.5 in")),
    Sketcher.Constraint("DistanceX", -1, 1, 0, 2, Q("547.104478 mm")),
    Sketcher.Constraint("DistanceY", -1, 1, 0, 2, Q("229.501015 mm")),
])
pad4 = doc.addObject("PartDesign::Pad", "Pad003")
body4.addObject(pad4)
pad4.Profile = sketch15
pad4.Length = Q("20.5 in")

# Sketch on YZ plane
sketch16 = doc.addObject("Sketcher::SketchObject", "Sketch015")
body4.addObject(sketch16)
sketch16.AttachmentSupport = (doc.getObject("YZ_Plane003"), [""])
sketch16.MapMode = "FlatFace"
sketch16.AttachmentOffset = App.Placement(V(0, 0, 20.5 * 25.4), App.Rotation())
sketch16.addGeometry([
    Part.LineSegment(V(560, 230, 0), V(547, 242, 0)),  # 0
    Part.LineSegment(V(547, 242, 0), V(547, 230, 0)),  # 1
    Part.LineSegment(V(547, 230, 0), V(560, 230, 0)),  # 2
    Part.LineSegment(V(1042, 242, 0), V(1030, 230, 0)),  # 3
    Part.LineSegment(V(1030, 230, 0), V(1042, 230, 0)),  # 4
    Part.LineSegment(V(1042, 230, 0), V(1042, 242, 0)),  # 5
], False)
sketch16.addConstraint([
    Sketcher.Constraint("Coincident", 0, 2, 1, 1),
    Sketcher.Constraint("Coincident", 1, 2, 2, 1),
    Sketcher.Constraint("Coincident", 2, 2, 0, 1),
    Sketcher.Constraint("Coincident", 3, 2, 4, 1),
    Sketcher.Constraint("Coincident", 4, 2, 5, 1),
    Sketcher.Constraint("Coincident", 5, 2, 3, 1),
    Sketcher.Constraint("Vertical", 1),
    Sketcher.Constraint("Horizontal", 2),
    Sketcher.Constraint("Horizontal", 4),
    Sketcher.Constraint("Vertical", 5),
    Sketcher.Constraint("Perpendicular", 0, 3),
    Sketcher.Constraint("Horizontal", 2, 2, 3, 2),
    Sketcher.Constraint("Horizontal", 0, 2, 5, 2),
    Sketcher.Constraint("Equal", 2, 4),
    Sketcher.Constraint("DistanceX", 2, 1, 2, 2, Q("0.5 in")),
    Sketcher.Constraint("DistanceX", 1, 2, 3, 2, Q("19 in")),
    Sketcher.Constraint("DistanceX", -1, 1, 0, 2, Q("547.104478 mm")),
    Sketcher.Constraint("DistanceY", -1, 1, 0, 2, Q("242.201015 mm")),
])
pocket12 = doc.addObject("PartDesign::Pocket", "Pocket011")
body4.addObject(pocket12)
pocket12.Profile = sketch16
pocket12.Type = "ThroughAll"

# Sketch on YZ plane
sketch17 = doc.addObject("Sketcher::SketchObject", "Sketch016")
body4.addObject(sketch17)
sketch17.AttachmentSupport = (doc.getObject("YZ_Plane003"), [""])
sketch17.MapMode = "FlatFace"
sketch17.AttachmentOffset = App.Placement(V(0, 0, 20.5 * 25.4), App.Rotation())
sketch17.addGeometry([
    Part.LineSegment(V(782, 230, 0), V(807, 230, 0)),
    Part.LineSegment(V(807, 230, 0), V(807, 236, 0)),
    Part.LineSegment(V(807, 236, 0), V(782, 236, 0)),
    Part.LineSegment(V(782, 236, 0), V(782, 230, 0)),
], False)
sketch17.addConstraint([
    Sketcher.Constraint("Coincident", 0, 2, 1, 1),
    Sketcher.Constraint("Coincident", 1, 2, 2, 1),
    Sketcher.Constraint("Coincident", 2, 2, 3, 1),
    Sketcher.Constraint("Coincident", 3, 2, 0, 1),
    Sketcher.Constraint("Horizontal", 0),
    Sketcher.Constraint("Vertical", 1),
    Sketcher.Constraint("Horizontal", 2),
    Sketcher.Constraint("Vertical", 3),
    Sketcher.Constraint("DistanceX", 0, 1, 0, 2, Q("1 in")),
    Sketcher.Constraint("DistanceY", 1, 1, 1, 2, Q("0.25 in")),
    Sketcher.Constraint("DistanceX", -1, 1, 0, 2, Q("807.454478 mm")),
    Sketcher.Constraint("DistanceY", -1, 1, 0, 2, Q("229.501015 mm")),
])
pocket13 = doc.addObject("PartDesign::Pocket", "Pocket012")
body4.addObject(pocket13)
pocket13.Profile = sketch17
pocket13.Type = "ThroughAll"
body5 = doc.addObject("PartDesign::Body", "Body004")

# Sketch on YZ plane
sketch18 = doc.addObject("Sketcher::SketchObject", "Sketch017")
body5.addObject(sketch18)
sketch18.AttachmentSupport = (doc.getObject("YZ_Plane004"), [""])
sketch18.MapMode = "FlatFace"
sketch18.addGeometry([
    Part.LineSegment(V(495, -305, 0), V(495, -318, 0)),
    Part.LineSegment(V(495, -318, 0), V(990, -318, 0)),
    Part.LineSegment(V(990, -318, 0), V(990, -305, 0)),
    Part.LineSegment(V(990, -305, 0), V(495, -305, 0)),
], False)
sketch18.addConstraint([
    Sketcher.Constraint("Coincident", 0, 2, 1, 1),
    Sketcher.Constraint("Coincident", 1, 2, 2, 1),
    Sketcher.Constraint("Coincident", 2, 2, 3, 1),
    Sketcher.Constraint("Coincident", 3, 2, 0, 1),
    Sketcher.Constraint("Vertical", 0),
    Sketcher.Constraint("Horizontal", 1),
    Sketcher.Constraint("Vertical", 2),
    Sketcher.Constraint("Horizontal", 3),
    Sketcher.Constraint("DistanceX", 1, 1, 1, 2, Q("19.5 in")),
    Sketcher.Constraint("DistanceY", 0, 2, 0, 1, Q("0.5 in")),
    Sketcher.Constraint("DistanceX", -1, 1, 0, 2, Q("494.804323 mm")),
    Sketcher.Constraint("DistanceY", 0, 2, -1, 1, Q("317.533463 mm")),
])
pad5 = doc.addObject("PartDesign::Pad", "Pad004")
body5.addObject(pad5)
pad5.Profile = sketch18
pad5.Length = Q("20.5 in")

# Sketch on YZ plane
sketch19 = doc.addObject("Sketcher::SketchObject", "Sketch018")
body5.addObject(sketch19)
sketch19.AttachmentSupport = (doc.getObject("YZ_Plane004"), [""])
sketch19.MapMode = "FlatFace"
sketch19.AttachmentOffset = App.Placement(V(0, 0, 20.5 * 25.4), App.Rotation())
sketch19.addGeometry([
    Part.LineSegment(V(495, -305, 0), V(495, -318, 0)),  # 0
    Part.LineSegment(V(495, -318, 0), V(508, -318, 0)),  # 1
    Part.LineSegment(V(508, -318, 0), V(495, -305, 0)),  # 2
    Part.LineSegment(V(990, -305, 0), V(977, -318, 0)),  # 3
    Part.LineSegment(V(977, -318, 0), V(990, -318, 0)),  # 4
    Part.LineSegment(V(990, -318, 0), V(990, -305, 0)),  # 5
], False)
sketch19.addConstraint([
    Sketcher.Constraint("Coincident", 0, 2, 1, 1),
    Sketcher.Constraint("Coincident", 1, 2, 2, 1),
    Sketcher.Constraint("Coincident", 2, 2, 0, 1),
    Sketcher.Constraint("Coincident", 3, 2, 4, 1),
    Sketcher.Constraint("Coincident", 4, 2, 5, 1),
    Sketcher.Constraint("Coincident", 5, 2, 3, 1),
    Sketcher.Constraint("Vertical", 0),
    Sketcher.Constraint("Horizontal", 1),
    Sketcher.Constraint("Horizontal", 4),
    Sketcher.Constraint("Vertical", 5),
    Sketcher.Constraint("Perpendicular", 2, 3),
    Sketcher.Constraint("Horizontal", 1, 2, 3, 2),
    Sketcher.Constraint("Horizontal", 2, 2, 5, 2),
    Sketcher.Constraint("Equal", 1, 4),
    Sketcher.Constraint("DistanceX", 1, 1, 1, 2, Q("0.5 in")),
    Sketcher.Constraint("DistanceX", 0, 2, 3, 2, Q("19 in")),
    Sketcher.Constraint("DistanceX", -1, 1, 0, 2, Q("494.804323 mm")),
    Sketcher.Constraint("DistanceY", 0, 2, -1, 1, Q("317.533463 mm")),
])
pocket14 = doc.addObject("PartDesign::Pocket", "Pocket013")
body5.addObject(pocket14)
pocket14.Profile = sketch19
pocket14.Type = "ThroughAll"

# Sketch on YZ plane
sketch20 = doc.addObject("Sketcher::SketchObject", "Sketch019")
body5.addObject(sketch20)
sketch20.AttachmentSupport = (doc.getObject("YZ_Plane004"), [""])
sketch20.MapMode = "FlatFace"
sketch20.AttachmentOffset = App.Placement(V(0, 0, 20.5 * 25.4), App.Rotation())
sketch20.addGeometry([
    Part.LineSegment(V(730, -318, 0), V(755, -318, 0)),
    Part.LineSegment(V(755, -318, 0), V(755, -311, 0)),
    Part.LineSegment(V(755, -311, 0), V(730, -311, 0)),
    Part.LineSegment(V(730, -311, 0), V(730, -318, 0)),
], False)
sketch20.addConstraint([
    Sketcher.Constraint("Coincident", 0, 2, 1, 1),
    Sketcher.Constraint("Coincident", 1, 2, 2, 1),
    Sketcher.Constraint("Coincident", 2, 2, 3, 1),
    Sketcher.Constraint("Coincident", 3, 2, 0, 1),
    Sketcher.Constraint("Horizontal", 0),
    Sketcher.Constraint("Vertical", 1),
    Sketcher.Constraint("Horizontal", 2),
    Sketcher.Constraint("Vertical", 3),
    Sketcher.Constraint("DistanceX", 0, 1, 0, 2, Q("1 in")),
    Sketcher.Constraint("DistanceY", 1, 1, 1, 2, Q("0.25 in")),
    Sketcher.Constraint("DistanceX", -1, 1, 0, 2, Q("755.154323 mm")),
    Sketcher.Constraint("DistanceY", 0, 2, -1, 1, Q("317.533463 mm")),
])
pocket15 = doc.addObject("PartDesign::Pocket", "Pocket014")
body5.addObject(pocket15)
pocket15.Profile = sketch20
pocket15.Type = "ThroughAll"
body6 = doc.addObject("PartDesign::Body", "Body005")

# Sketch on YZ plane
sketch21 = doc.addObject("Sketcher::SketchObject", "Sketch020")
body6.addObject(sketch21)
sketch21.AttachmentSupport = (doc.getObject("YZ_Plane005"), [""])
sketch21.MapMode = "FlatFace"
sketch21.addGeometry([
    Part.LineSegment(V(-375, 199, 0), V(-375, -30, 0)),
    Part.LineSegment(V(-375, -30, 0), V(-362, -30, 0)),
    Part.LineSegment(V(-362, -30, 0), V(-362, 199, 0)),
    Part.LineSegment(V(-362, 199, 0), V(-375, 199, 0)),
], False)
sketch21.addConstraint([
    Sketcher.Constraint("Coincident", 0, 2, 1, 1),
    Sketcher.Constraint("Coincident", 1, 2, 2, 1),
    Sketcher.Constraint("Coincident", 2, 2, 3, 1),
    Sketcher.Constraint("Coincident", 3, 2, 0, 1),
    Sketcher.Constraint("Vertical", 0),
    Sketcher.Constraint("Horizontal", 1),
    Sketcher.Constraint("Vertical", 2),
    Sketcher.Constraint("Horizontal", 3),
    Sketcher.Constraint("DistanceY", 0, 2, 0, 1, Q("9 in")),
    Sketcher.Constraint("DistanceX", 1, 1, 1, 2, Q("0.5 in")),
    Sketcher.Constraint("DistanceX", 0, 2, -1, 1, Q("375.181228 mm")),
    Sketcher.Constraint("DistanceY", 0, 2, -1, 1, Q("29.846113 mm")),
])
pad6 = doc.addObject("PartDesign::Pad", "Pad005")
body6.addObject(pad6)
pad6.Profile = sketch21
pad6.Length = Q("20 in")

doc.recompute()
